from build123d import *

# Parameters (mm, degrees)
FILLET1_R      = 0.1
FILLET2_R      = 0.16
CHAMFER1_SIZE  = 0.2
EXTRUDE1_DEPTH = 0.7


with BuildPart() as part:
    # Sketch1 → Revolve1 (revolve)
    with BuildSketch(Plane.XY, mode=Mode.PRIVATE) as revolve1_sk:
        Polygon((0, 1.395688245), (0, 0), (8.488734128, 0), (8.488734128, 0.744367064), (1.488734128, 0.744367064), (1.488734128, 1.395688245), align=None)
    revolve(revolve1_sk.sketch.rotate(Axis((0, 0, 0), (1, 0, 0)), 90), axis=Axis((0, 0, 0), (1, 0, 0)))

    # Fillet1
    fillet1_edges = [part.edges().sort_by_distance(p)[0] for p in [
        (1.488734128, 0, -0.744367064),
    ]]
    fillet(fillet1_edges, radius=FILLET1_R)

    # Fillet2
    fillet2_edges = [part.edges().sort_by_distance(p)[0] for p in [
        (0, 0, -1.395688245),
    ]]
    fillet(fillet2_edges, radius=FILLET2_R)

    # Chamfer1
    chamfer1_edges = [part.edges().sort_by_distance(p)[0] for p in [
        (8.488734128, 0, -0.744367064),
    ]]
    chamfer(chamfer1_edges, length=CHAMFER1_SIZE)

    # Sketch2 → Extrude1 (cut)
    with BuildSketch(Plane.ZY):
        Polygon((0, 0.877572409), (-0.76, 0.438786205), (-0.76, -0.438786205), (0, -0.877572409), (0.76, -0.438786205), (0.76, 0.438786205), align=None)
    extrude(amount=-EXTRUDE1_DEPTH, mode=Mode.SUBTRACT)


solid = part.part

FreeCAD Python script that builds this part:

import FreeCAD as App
import Part
import Sketcher

V = App.Vector
Q = App.Units.Quantity


def edges_at(feature, points):
    """Names of the edges that pass closest to the given points."""
    edges = feature.Shape.Edges
    near = lambda p: min(range(len(edges)), key=lambda i: edges[i].distToShape(Part.Vertex(*p))[0])
    return sorted({f"Edge{near(p) + 1}" for p in points})

doc = App.newDocument("Part")
body = doc.addObject("PartDesign::Body", "Body")

sketch1 = body.newObject("Sketcher::SketchObject", "Sketch")
sketch1.AttachmentSupport = (doc.getObject("XY_Plane"), [""])
sketch1.MapMode = "FlatFace"
sketch1.addGeometry(Part.LineSegment(V(0, 1.4, 0), V(0, 0, 0)), False)
sketch1.addGeometry(Part.LineSegment(V(0, 0, 0), V(8.5, 0, 0)), False)
sketch1.addGeometry(Part.LineSegment(V(8.5, 0, 0), V(8.5, 0.7, 0)), False)
sketch1.addGeometry(Part.LineSegment(V(8.5, 0.7, 0), V(1.5, 0.7, 0)), False)
sketch1.addGeometry(Part.LineSegment(V(1.5, 0.7, 0), V(1.5, 1.4, 0)), False)
sketch1.addGeometry(Part.LineSegment(V(1.5, 1.4, 0), V(0, 1.4, 0)), False)
sketch1.addConstraint(Sketcher.Constraint("Coincident", 0, 2, 1, 1))
sketch1.addConstraint(Sketcher.Constraint("Coincident", 1, 2, 2, 1))
sketch1.addConstraint(Sketcher.Constraint("Coincident", 2, 2, 3, 1))
sketch1.addConstraint(Sketcher.Constraint("Coincident", 3, 2, 4, 1))
sketch1.addConstraint(Sketcher.Constraint("Coincident", 4, 2, 5, 1))
sketch1.addConstraint(Sketcher.Constraint("Coincident", 5, 2, 0, 1))
sketch1.addConstraint(Sketcher.Constraint("Vertical", 0))
sketch1.addConstraint(Sketcher.Constraint("Horizontal", 1))
sketch1.addConstraint(Sketcher.Constraint("Vertical", 2))
sketch1.addConstraint(Sketcher.Constraint("Horizontal", 3))
sketch1.addConstraint(Sketcher.Constraint("Vertical", 4))
sketch1.addConstraint(Sketcher.Constraint("Horizontal", 5))
sketch1.addConstraint(Sketcher.Constraint("Coincident", 0, 2, -1, 1))
sketch1.addConstraint(Sketcher.Constraint("DistanceX", 3, 2, 3, 1, 7.0))
sketch1.addConstraint(Sketcher.Constraint("DistanceY", 0, 2, 0, 1, 1.395688))
sketch1.addConstraint(Sketcher.Constraint("DistanceY", 4, 1, 4, 2, 0.651321))
sketch1.addConstraint(Sketcher.Constraint("DistanceX", 1, 1, 1, 2, 8.488734))
revolution = body.newObject("PartDesign::Revolution", "Revolution")
revolution.Profile = sketch1
revolution.ReferenceAxis = (sketch1, ["H_Axis"])
revolution.Angle = 360
doc.recompute()

fillet = body.newObject("PartDesign::Fillet", "Fillet")
fillet.Base = (revolution, edges_at(revolution, [(1.489, 0, -0.744)]))
fillet.Radius = 0.1
doc.recompute()

fillet2 = body.newObject("PartDesign::Fillet", "Fillet001")
fillet2.Base = (fillet, edges_at(fillet, [(0, 0, -1.396)]))
fillet2.Radius = 0.16
doc.recompute()

chamfer = body.newObject("PartDesign::Chamfer", "Chamfer")
chamfer.Base = (fillet2, edges_at(fillet2, [(8.489, 0, -0.744)]))
chamfer.Size = 0.2

sketch2 = body.newObject("Sketcher::SketchObject", "Sketch001")
sketch2.AttachmentSupport = (doc.getObject("YZ_Plane"), [""])
sketch2.MapMode = "FlatFace"
sketch2.addGeometry(Part.LineSegment(V(0.9, 0, 0), V(0.4, -0.8, 0)), False)
sketch2.addGeometry(Part.LineSegment(V(0.4, -0.8, 0), V(-0.4, -0.8, 0)), False)
sketch2.addGeometry(Part.LineSegment(V(-0.4, -0.8, 0), V(-0.9, 0, 0)), False)
sketch2.addGeometry(Part.LineSegment(V(-0.9, 0, 0), V(-0.4, 0.8, 0)), False)
sketch2.addGeometry(Part.LineSegment(V(-0.4, 0.8, 0), V(0.4, 0.8, 0)), False)
sketch2.addGeometry(Part.LineSegment(V(0.4, 0.8, 0), V(0.9, 0, 0)), False)
sketch2.addConstraint(Sketcher.Constraint("Coincident", 0, 2, 1, 1))
sketch2.addConstraint(Sketcher.Constraint("Coincident", 1, 2, 2, 1))
sketch2.addConstraint(Sketcher.Constraint("Coincident", 2, 2, 3, 1))
sketch2.addConstraint(Sketcher.Constraint("Coincident", 3, 2, 4, 1))
sketch2.addConstraint(Sketcher.Constraint("Coincident", 4, 2, 5, 1))
sketch2.addConstraint(Sketcher.Constraint("Coincident", 5, 2, 0, 1))
sketch2.addConstraint(Sketcher.Constraint("Horizontal", 1))
sketch2.addConstraint(Sketcher.Constraint("Horizontal", 4))
sketch2.addConstraint(Sketcher.Constraint("Symmetric", 0, 2, 3, 2, -1, 1))
sketch2.addConstraint(Sketcher.Constraint("Symmetric", 2, 2, 5, 2, -1, 1))
sketch2.addConstraint(Sketcher.Constraint("PointOnObject", 2, 2, -1))
sketch2.addConstraint(Sketcher.Constraint("Parallel", 2, 5))
sketch2.addConstraint(Sketcher.Constraint("Vertical", 1, 2, 3, 2))
sketch2.addConstraint(Sketcher.Constraint("Angle", 0, Q("-120 deg")))
sketch2.addConstraint(Sketcher.Constraint("DistanceY", 0, 2, -1, 1, 0.76))
sketch2.addConstraint(Sketcher.Constraint("DistanceX", 1, 2, 1, 1, 0.877572))
pocket1 = body.newObject("PartDesign::Pocket", "Pocket")
pocket1.Profile = sketch2
pocket1.Length = 0.7
pocket1.Reversed = True

doc.recompute()
